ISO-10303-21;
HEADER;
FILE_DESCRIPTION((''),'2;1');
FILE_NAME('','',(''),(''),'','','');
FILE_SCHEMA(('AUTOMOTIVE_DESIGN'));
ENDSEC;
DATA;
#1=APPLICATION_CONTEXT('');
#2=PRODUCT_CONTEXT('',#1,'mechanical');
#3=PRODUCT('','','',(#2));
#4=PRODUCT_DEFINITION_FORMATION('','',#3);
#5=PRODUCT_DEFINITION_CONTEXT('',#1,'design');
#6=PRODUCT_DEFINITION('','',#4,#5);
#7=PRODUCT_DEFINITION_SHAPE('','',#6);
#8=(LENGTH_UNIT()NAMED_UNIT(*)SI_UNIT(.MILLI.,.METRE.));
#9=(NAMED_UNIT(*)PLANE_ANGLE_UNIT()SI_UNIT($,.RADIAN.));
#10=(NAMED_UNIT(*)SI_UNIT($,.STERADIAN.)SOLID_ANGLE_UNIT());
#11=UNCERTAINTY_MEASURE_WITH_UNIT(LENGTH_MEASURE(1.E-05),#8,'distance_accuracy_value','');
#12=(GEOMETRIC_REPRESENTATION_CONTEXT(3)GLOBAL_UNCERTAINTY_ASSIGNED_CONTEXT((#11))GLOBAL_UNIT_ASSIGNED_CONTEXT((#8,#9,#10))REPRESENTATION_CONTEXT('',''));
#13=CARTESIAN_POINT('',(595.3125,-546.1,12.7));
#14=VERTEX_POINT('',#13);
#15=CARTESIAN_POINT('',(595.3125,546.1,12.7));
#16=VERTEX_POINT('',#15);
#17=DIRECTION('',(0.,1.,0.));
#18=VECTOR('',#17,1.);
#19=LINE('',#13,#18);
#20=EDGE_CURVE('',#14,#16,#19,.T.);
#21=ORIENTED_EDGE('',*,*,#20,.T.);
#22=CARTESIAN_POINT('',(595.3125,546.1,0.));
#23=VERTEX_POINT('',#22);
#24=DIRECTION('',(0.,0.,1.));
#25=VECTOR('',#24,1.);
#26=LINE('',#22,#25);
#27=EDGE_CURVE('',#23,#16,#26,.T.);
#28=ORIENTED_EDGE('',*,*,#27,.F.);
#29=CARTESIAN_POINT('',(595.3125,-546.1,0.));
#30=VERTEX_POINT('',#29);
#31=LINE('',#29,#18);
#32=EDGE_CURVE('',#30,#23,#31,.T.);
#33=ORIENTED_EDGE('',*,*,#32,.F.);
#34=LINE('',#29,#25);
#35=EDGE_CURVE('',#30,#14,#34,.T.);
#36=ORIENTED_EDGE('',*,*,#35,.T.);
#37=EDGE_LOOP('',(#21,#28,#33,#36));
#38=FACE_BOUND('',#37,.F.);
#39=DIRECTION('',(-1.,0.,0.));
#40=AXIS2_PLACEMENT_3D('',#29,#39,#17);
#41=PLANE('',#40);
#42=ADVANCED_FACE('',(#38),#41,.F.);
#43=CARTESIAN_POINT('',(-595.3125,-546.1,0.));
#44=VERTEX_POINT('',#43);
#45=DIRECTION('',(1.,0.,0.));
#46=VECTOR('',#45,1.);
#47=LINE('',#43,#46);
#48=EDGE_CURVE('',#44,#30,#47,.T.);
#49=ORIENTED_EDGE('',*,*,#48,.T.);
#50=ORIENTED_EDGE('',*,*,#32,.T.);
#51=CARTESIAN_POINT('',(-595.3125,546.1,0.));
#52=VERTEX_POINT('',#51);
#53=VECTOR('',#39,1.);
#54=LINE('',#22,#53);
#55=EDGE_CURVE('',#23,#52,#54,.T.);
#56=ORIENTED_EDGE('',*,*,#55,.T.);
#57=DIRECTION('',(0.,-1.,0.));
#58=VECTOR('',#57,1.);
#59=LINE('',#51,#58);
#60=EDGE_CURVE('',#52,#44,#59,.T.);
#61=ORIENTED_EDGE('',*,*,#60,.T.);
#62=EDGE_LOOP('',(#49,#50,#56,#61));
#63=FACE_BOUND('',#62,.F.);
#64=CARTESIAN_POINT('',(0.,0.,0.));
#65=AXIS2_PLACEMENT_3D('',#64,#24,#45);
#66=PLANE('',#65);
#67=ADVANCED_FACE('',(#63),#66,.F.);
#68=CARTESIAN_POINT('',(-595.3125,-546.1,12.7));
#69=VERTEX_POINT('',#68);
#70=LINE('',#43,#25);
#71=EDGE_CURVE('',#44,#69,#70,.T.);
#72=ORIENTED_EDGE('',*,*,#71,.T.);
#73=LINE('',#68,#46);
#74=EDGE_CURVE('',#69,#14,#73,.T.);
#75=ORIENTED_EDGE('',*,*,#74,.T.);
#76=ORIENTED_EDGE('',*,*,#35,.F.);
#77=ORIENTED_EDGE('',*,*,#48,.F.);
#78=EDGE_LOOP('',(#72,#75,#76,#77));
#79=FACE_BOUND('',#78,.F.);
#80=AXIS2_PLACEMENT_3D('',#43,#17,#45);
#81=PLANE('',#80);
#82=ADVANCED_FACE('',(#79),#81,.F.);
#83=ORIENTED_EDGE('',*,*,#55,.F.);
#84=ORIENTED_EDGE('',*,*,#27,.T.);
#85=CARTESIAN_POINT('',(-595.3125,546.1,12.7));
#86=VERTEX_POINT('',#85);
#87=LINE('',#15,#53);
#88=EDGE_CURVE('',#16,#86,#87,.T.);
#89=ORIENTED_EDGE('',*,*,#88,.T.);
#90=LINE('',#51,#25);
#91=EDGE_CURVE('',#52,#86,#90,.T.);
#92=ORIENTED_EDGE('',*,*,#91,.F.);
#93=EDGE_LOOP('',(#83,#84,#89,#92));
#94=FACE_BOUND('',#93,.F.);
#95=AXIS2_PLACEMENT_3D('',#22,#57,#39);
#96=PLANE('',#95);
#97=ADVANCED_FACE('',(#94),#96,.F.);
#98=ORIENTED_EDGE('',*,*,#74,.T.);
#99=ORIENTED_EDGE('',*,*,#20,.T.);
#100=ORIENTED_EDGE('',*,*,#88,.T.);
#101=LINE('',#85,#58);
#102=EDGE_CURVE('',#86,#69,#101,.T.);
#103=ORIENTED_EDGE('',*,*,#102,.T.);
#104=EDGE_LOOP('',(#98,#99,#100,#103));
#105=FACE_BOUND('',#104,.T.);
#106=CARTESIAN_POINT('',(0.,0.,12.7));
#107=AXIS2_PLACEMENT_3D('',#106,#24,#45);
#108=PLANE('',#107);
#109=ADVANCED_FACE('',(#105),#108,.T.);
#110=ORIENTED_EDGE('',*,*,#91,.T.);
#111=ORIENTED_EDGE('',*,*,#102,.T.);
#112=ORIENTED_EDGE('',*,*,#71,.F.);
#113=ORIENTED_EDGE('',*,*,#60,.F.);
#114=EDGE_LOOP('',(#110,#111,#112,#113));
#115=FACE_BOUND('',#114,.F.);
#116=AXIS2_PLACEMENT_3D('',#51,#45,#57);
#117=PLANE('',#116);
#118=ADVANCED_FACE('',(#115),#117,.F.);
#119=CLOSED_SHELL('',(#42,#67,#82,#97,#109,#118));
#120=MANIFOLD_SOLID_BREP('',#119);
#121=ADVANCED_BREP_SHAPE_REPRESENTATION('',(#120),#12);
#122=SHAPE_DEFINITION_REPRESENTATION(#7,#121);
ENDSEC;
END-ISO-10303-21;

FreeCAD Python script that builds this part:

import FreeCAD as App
import Part
import Sketcher
Q = App.Units.Quantity


def add_polygon(sketch, points):
    """Adds a closed chain of lines whose ends are joined by coincident constraints."""
    first, n = sketch.GeometryCount, len(points)
    for a, b in zip(points, points[1:] + points[:1]):
        sketch.addGeometry(Part.LineSegment(App.Vector(*a, 0), App.Vector(*b, 0)), False)
    for i in range(n):
        sketch.addConstraint(Sketcher.Constraint("Coincident", first + i, 2, first + (i + 1) % n, 1))

doc = App.newDocument("Part")
body = doc.addObject("PartDesign::Body", "Body")

# Sketch on XY plane
sketch1 = body.newObject("Sketcher::SketchObject", "Sketch")
sketch1.AttachmentSupport = (doc.getObject("XY_Plane"), [""])
sketch1.MapMode = "FlatFace"
add_polygon(sketch1, [(-595.3125, 546.1), (-595.3125, -546.1), (595.3125, -546.1), (595.3125, 546.1)])  # lines 0-3
sketch1.addConstraint([
    Sketcher.Constraint("Vertical", 0),
    Sketcher.Constraint("Horizontal", 1),
    Sketcher.Constraint("Vertical", 2),
    Sketcher.Constraint("Horizontal", 3),
    Sketcher.Constraint("Symmetric", 0, 2, 2, 2, -1, 1),
    Sketcher.Constraint("DistanceY", 0, 2, 0, 1, Q("43 in")),
    Sketcher.Constraint("DistanceX", 1, 1, 1, 2, Q("46.875 in")),
])
pad1 = body.newObject("PartDesign::Pad", "Pad")
pad1.Profile = sketch1
pad1.Length = Q("0.5 in")

doc.recompute()
